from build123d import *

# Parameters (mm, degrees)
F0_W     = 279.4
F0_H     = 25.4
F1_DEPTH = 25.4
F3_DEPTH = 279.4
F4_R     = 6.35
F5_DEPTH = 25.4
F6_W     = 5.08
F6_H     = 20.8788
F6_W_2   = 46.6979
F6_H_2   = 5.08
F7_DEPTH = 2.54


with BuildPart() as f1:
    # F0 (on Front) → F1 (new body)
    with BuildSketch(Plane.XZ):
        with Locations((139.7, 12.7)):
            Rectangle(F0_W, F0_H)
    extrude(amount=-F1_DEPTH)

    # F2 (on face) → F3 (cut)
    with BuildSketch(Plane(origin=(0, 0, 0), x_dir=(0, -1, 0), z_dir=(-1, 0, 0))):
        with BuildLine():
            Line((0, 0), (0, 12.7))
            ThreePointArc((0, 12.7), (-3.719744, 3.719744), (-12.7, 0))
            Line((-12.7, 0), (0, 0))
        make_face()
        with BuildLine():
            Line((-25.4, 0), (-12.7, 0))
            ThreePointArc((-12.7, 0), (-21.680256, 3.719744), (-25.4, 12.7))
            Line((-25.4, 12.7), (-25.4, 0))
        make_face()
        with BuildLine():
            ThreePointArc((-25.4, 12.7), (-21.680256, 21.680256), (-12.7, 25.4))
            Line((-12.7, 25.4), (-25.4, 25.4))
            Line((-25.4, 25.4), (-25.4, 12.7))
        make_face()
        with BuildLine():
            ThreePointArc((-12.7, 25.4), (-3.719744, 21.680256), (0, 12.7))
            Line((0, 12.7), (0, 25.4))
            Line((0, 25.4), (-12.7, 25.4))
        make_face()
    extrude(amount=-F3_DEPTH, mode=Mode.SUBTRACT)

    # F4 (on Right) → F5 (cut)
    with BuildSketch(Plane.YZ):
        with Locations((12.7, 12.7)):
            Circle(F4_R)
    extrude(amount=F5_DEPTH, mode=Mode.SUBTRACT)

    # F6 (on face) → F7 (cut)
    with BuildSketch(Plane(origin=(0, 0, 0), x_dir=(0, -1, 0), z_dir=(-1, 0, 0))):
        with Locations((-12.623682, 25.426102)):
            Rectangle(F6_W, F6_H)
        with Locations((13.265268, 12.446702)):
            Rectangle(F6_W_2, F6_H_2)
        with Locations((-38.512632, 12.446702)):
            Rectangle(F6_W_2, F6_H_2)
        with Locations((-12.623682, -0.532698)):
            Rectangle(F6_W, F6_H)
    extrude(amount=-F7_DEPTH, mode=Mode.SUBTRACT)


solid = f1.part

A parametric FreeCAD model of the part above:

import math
import FreeCAD as App
import Part
import Sketcher
from FreeCAD import Vector
Q = App.Units.Quantity

doc = App.newDocument("Part")
body = doc.addObject("PartDesign::Body", "Body")

# Sketch on XZ plane
sketch1 = doc.addObject("Sketcher::SketchObject", "Sketch")
body.addObject(sketch1)
sketch1.AttachmentSupport = (doc.XZ_Plane, [""])
sketch1.MapMode = "FlatFace"
sketch1.addGeometry([
    Part.LineSegment(Vector(0, 25.4, 0), Vector(0, 0, 0)),
    Part.LineSegment(Vector(0, 0, 0), Vector(279.4, 0, 0)),
    Part.LineSegment(Vector(279.4, 0, 0), Vector(279.4, 25.4, 0)),
    Part.LineSegment(Vector(279.4, 25.4, 0), Vector(0, 25.4, 0)),
], False)
sketch1.addConstraint([
    Sketcher.Constraint("Coincident", 0, 2, 1, 1),
    Sketcher.Constraint("Coincident", 1, 2, 2, 1),
    Sketcher.Constraint("Coincident", 2, 2, 3, 1),
    Sketcher.Constraint("Coincident", 3, 2, 0, 1),
    Sketcher.Constraint("Vertical", 0),
    Sketcher.Constraint("Horizontal", 1),
    Sketcher.Constraint("Vertical", 2),
    Sketcher.Constraint("Horizontal", 3),
    Sketcher.Constraint("Coincident", 0, 2, -1, 1),
    Sketcher.Constraint("DistanceX", 1, 1, 1, 2, Q("11 in")),
    Sketcher.Constraint("DistanceY", 0, 2, 0, 1, Q("1 in")),
])
pad1 = doc.addObject("PartDesign::Pad", "Pad")
body.addObject(pad1)
pad1.Profile = sketch1
pad1.Length = Q("1 in")
pad1.Reversed = True

# Sketch on YZ plane
sketch2 = doc.addObject("Sketcher::SketchObject", "Sketch001")
body.addObject(sketch2)
sketch2.AttachmentSupport = (doc.YZ_Plane, [""])
sketch2.MapMode = "FlatFace"
sketch2.addGeometry([
    Part.LineSegment(Vector(0, 0, 0), Vector(0, 12.7, 0)),  # 0
    Part.ArcOfCircle(Part.Circle(Vector(12.7, 12.7, 0), Vector(0, 0, 1), 12.7), math.radians(-179.999998), math.radians(-90.000002)),  # 1
    Part.LineSegment(Vector(12.7, 0, 0), Vector(0, 0, 0)),  # 2
    Part.LineSegment(Vector(25.4, 0, 0), Vector(12.7, 0, 0)),  # 3
    Part.ArcOfCircle(Part.Circle(Vector(12.7, 12.7, 0), Vector(0, 0, 1), 12.7), math.radians(-89.999998), math.radians(-0.000002)),  # 4
    Part.LineSegment(Vector(25.4, 12.7, 0), Vector(25.4, 0, 0)),  # 5
    Part.ArcOfCircle(Part.Circle(Vector(12.7, 12.7, 0), Vector(0, 0, 1), 12.7), math.radians(0.000002), math.radians(89.999998)),  # 6
    Part.LineSegment(Vector(12.7, 25.4, 0), Vector(25.4, 25.4, 0)),  # 7
    Part.LineSegment(Vector(25.4, 25.4, 0), Vector(25.4, 12.7, 0)),  # 8
    Part.ArcOfCircle(Part.Circle(Vector(12.7, 12.7, 0), Vector(0, 0, 1), 12.7), math.radians(90.000002), math.radians(179.999998)),  # 9
    Part.LineSegment(Vector(0, 12.7, 0), Vector(0, 25.4, 0)),  # 10
    Part.LineSegment(Vector(0, 25.4, 0), Vector(12.7, 25.4, 0)),  # 11
], False)
sketch2.addConstraint([
    Sketcher.Constraint("Tangent", 0, 2, 1, 1),
    Sketcher.Constraint("Tangent", 1, 2, 2, 1),
    Sketcher.Constraint("Coincident", 2, 2, 0, 1),
    Sketcher.Constraint("Tangent", 3, 2, 4, 1),
    Sketcher.Constraint("Tangent", 4, 2, 5, 1),
    Sketcher.Constraint("Coincident", 5, 2, 3, 1),
    Sketcher.Constraint("Tangent", 6, 2, 7, 1),
    Sketcher.Constraint("Coincident", 7, 2, 8, 1),
    Sketcher.Constraint("Tangent", 8, 2, 6, 1),
    Sketcher.Constraint("Tangent", 9, 2, 10, 1),
    Sketcher.Constraint("Coincident", 10, 2, 11, 1),
    Sketcher.Constraint("Tangent", 11, 2, 9, 1),
    Sketcher.Constraint("Vertical", 0),
    Sketcher.Constraint("Horizontal", 2),
    Sketcher.Constraint("Horizontal", 3),
    Sketcher.Constraint("Vertical", 5),
    Sketcher.Constraint("Horizontal", 7),
    Sketcher.Constraint("Vertical", 8),
    Sketcher.Constraint("Vertical", 10),
    Sketcher.Constraint("Horizontal", 11),
    Sketcher.Constraint("Coincident", 2, 2, -1, 1),
    Sketcher.Constraint("Coincident", 4, 3, 1, 3),
    Sketcher.Constraint("Coincident", 6, 3, 1, 3),
    Sketcher.Constraint("Coincident", 9, 3, 1, 3),
    Sketcher.Constraint("Equal", 1, 4),
    Sketcher.Constraint("Equal", 4, 6),
    Sketcher.Constraint("Equal", 6, 9),
    Sketcher.Constraint("Radius", 1, Q("0.5 in")),
])
pocket1 = doc.addObject("PartDesign::Pocket", "Pocket")
body.addObject(pocket1)
pocket1.Profile = sketch2
pocket1.Length = Q("11 in")
pocket1.Reversed = True

# Sketch on YZ plane
sketch3 = doc.addObject("Sketcher::SketchObject", "Sketch002")
body.addObject(sketch3)
sketch3.AttachmentSupport = (doc.YZ_Plane, [""])
sketch3.MapMode = "FlatFace"
sketch3.addGeometry(Part.Circle(Vector(12.7, 12.7, 0), Vector(0, 0, 1), 6.35), False)
sketch3.addConstraint([
    Sketcher.Constraint("Diameter", 0, Q("0.5 in")),
    Sketcher.Constraint("DistanceX", -1, 1, 0, 3, Q("0.5 in")),
    Sketcher.Constraint("DistanceY", -1, 1, 0, 3, Q("0.5 in")),
])
pocket2 = doc.addObject("PartDesign::Pocket", "Pocket001")
body.addObject(pocket2)
pocket2.Profile = sketch3
pocket2.Length = Q("1 in")
pocket2.Reversed = True

# Sketch on YZ plane
sketch4 = doc.addObject("Sketcher::SketchObject", "Sketch003")
body.addObject(sketch4)
sketch4.AttachmentSupport = (doc.YZ_Plane, [""])
sketch4.MapMode = "FlatFace"
sketch4.addGeometry([
    Part.LineSegment(Vector(15.163682, 35.865502, 0), Vector(15.163682, 14.986702, 0)),  # 0
    Part.LineSegment(Vector(15.163682, 14.986702, 0), Vector(10.083682, 14.986702, 0)),  # 1
    Part.LineSegment(Vector(10.083682, 14.986702, 0), Vector(10.083682, 35.865502, 0)),  # 2
    Part.LineSegment(Vector(10.083682, 35.865502, 0), Vector(15.163682, 35.865502, 0)),  # 3
    Part.LineSegment(Vector(10.083682, 14.986702, 0), Vector(10.083682, 9.906702, 0)),  # 4
    Part.LineSegment(Vector(10.083682, 9.906702, 0), Vector(-36.614218, 9.906702, 0)),  # 5
    Part.LineSegment(Vector(-36.614218, 9.906702, 0), Vector(-36.614218, 14.986702, 0)),  # 6
    Part.LineSegment(Vector(-36.614218, 14.986702, 0), Vector(10.083682, 14.986702, 0)),  # 7
    Part.LineSegment(Vector(61.861582, 14.986702, 0), Vector(61.861582, 9.906702, 0)),  # 8
    Part.LineSegment(Vector(61.861582, 9.906702, 0), Vector(15.163682, 9.906702, 0)),  # 9
    Part.LineSegment(Vector(15.163682, 9.906702, 0), Vector(15.163682, 14.986702, 0)),  # 10
    Part.LineSegment(Vector(15.163682, 14.986702, 0), Vector(61.861582, 14.986702, 0)),  # 11
    Part.LineSegment(Vector(15.163682, 9.906702, 0), Vector(15.163682, -10.972098, 0)),  # 12
    Part.LineSegment(Vector(15.163682, -10.972098, 0), Vector(10.083682, -10.972098, 0)),  # 13
    Part.LineSegment(Vector(10.083682, -10.972098, 0), Vector(10.083682, 9.906702, 0)),  # 14
    Part.LineSegment(Vector(10.083682, 9.906702, 0), Vector(15.163682, 9.906702, 0)),  # 15
], False)
sketch4.addConstraint([
    Sketcher.Constraint("Coincident", 0, 2, 1, 1),
    Sketcher.Constraint("Coincident", 1, 2, 2, 1),
    Sketcher.Constraint("Coincident", 2, 2, 3, 1),
    Sketcher.Constraint("Coincident", 3, 2, 0, 1),
    Sketcher.Constraint("Coincident", 4, 2, 5, 1),
    Sketcher.Constraint("Coincident", 5, 2, 6, 1),
    Sketcher.Constraint("Coincident", 6, 2, 7, 1),
    Sketcher.Constraint("Coincident", 7, 2, 4, 1),
    Sketcher.Constraint("Coincident", 8, 2, 9, 1),
    Sketcher.Constraint("Coincident", 9, 2, 10, 1),
    Sketcher.Constraint("Coincident", 10, 2, 11, 1),
    Sketcher.Constraint("Coincident", 11, 2, 8, 1),
    Sketcher.Constraint("Coincident", 12, 2, 13, 1),
    Sketcher.Constraint("Coincident", 13, 2, 14, 1),
    Sketcher.Constraint("Coincident", 14, 2, 15, 1),
    Sketcher.Constraint("Coincident", 15, 2, 12, 1),
    Sketcher.Constraint("Vertical", 0),
    Sketcher.Constraint("Horizontal", 1),
    Sketcher.Constraint("Vertical", 2),
    Sketcher.Constraint("Horizontal", 3),
    Sketcher.Constraint("Vertical", 4),
    Sketcher.Constraint("Horizontal", 5),
    Sketcher.Constraint("Vertical", 6),
    Sketcher.Constraint("Horizontal", 7),
    Sketcher.Constraint("Vertical", 8),
    Sketcher.Constraint("Horizontal", 9),
    Sketcher.Constraint("Vertical", 10),
    Sketcher.Constraint("Horizontal", 11),
    Sketcher.Constraint("Vertical", 12),
    Sketcher.Constraint("Horizontal", 13),
    Sketcher.Constraint("Vertical", 14),
    Sketcher.Constraint("Horizontal", 15),
    Sketcher.Constraint("Coincident", 7, 2, 1, 2),
    Sketcher.Constraint("Coincident", 10, 2, 0, 2),
    Sketcher.Constraint("Coincident", 14, 2, 4, 2),
    Sketcher.Constraint("Coincident", 15, 2, 9, 2),
    Sketcher.Constraint("Equal", 7, 9),
    Sketcher.Constraint("Equal", 15, 4),
    Sketcher.Constraint("Equal", 2, 12),
    Sketcher.Constraint("DistanceX", 1, 2, 1, 1, Q("0.2 in")),
    Sketcher.Constraint("DistanceY", 0, 2, 0, 1, Q("0.822 in")),
    Sketcher.Constraint("DistanceX", 5, 2, 5, 1, Q("1.8385 in")),
    Sketcher.Constraint("DistanceY", -1, 1, 0, 2, 14.986702),
    Sketcher.Constraint("DistanceX", -1, 1, 0, 2, 15.163682),
])
pocket3 = doc.addObject("PartDesign::Pocket", "Pocket002")
body.addObject(pocket3)
pocket3.Profile = sketch4
pocket3.Length = Q("0.1 in")
pocket3.Reversed = True

doc.recompute()
